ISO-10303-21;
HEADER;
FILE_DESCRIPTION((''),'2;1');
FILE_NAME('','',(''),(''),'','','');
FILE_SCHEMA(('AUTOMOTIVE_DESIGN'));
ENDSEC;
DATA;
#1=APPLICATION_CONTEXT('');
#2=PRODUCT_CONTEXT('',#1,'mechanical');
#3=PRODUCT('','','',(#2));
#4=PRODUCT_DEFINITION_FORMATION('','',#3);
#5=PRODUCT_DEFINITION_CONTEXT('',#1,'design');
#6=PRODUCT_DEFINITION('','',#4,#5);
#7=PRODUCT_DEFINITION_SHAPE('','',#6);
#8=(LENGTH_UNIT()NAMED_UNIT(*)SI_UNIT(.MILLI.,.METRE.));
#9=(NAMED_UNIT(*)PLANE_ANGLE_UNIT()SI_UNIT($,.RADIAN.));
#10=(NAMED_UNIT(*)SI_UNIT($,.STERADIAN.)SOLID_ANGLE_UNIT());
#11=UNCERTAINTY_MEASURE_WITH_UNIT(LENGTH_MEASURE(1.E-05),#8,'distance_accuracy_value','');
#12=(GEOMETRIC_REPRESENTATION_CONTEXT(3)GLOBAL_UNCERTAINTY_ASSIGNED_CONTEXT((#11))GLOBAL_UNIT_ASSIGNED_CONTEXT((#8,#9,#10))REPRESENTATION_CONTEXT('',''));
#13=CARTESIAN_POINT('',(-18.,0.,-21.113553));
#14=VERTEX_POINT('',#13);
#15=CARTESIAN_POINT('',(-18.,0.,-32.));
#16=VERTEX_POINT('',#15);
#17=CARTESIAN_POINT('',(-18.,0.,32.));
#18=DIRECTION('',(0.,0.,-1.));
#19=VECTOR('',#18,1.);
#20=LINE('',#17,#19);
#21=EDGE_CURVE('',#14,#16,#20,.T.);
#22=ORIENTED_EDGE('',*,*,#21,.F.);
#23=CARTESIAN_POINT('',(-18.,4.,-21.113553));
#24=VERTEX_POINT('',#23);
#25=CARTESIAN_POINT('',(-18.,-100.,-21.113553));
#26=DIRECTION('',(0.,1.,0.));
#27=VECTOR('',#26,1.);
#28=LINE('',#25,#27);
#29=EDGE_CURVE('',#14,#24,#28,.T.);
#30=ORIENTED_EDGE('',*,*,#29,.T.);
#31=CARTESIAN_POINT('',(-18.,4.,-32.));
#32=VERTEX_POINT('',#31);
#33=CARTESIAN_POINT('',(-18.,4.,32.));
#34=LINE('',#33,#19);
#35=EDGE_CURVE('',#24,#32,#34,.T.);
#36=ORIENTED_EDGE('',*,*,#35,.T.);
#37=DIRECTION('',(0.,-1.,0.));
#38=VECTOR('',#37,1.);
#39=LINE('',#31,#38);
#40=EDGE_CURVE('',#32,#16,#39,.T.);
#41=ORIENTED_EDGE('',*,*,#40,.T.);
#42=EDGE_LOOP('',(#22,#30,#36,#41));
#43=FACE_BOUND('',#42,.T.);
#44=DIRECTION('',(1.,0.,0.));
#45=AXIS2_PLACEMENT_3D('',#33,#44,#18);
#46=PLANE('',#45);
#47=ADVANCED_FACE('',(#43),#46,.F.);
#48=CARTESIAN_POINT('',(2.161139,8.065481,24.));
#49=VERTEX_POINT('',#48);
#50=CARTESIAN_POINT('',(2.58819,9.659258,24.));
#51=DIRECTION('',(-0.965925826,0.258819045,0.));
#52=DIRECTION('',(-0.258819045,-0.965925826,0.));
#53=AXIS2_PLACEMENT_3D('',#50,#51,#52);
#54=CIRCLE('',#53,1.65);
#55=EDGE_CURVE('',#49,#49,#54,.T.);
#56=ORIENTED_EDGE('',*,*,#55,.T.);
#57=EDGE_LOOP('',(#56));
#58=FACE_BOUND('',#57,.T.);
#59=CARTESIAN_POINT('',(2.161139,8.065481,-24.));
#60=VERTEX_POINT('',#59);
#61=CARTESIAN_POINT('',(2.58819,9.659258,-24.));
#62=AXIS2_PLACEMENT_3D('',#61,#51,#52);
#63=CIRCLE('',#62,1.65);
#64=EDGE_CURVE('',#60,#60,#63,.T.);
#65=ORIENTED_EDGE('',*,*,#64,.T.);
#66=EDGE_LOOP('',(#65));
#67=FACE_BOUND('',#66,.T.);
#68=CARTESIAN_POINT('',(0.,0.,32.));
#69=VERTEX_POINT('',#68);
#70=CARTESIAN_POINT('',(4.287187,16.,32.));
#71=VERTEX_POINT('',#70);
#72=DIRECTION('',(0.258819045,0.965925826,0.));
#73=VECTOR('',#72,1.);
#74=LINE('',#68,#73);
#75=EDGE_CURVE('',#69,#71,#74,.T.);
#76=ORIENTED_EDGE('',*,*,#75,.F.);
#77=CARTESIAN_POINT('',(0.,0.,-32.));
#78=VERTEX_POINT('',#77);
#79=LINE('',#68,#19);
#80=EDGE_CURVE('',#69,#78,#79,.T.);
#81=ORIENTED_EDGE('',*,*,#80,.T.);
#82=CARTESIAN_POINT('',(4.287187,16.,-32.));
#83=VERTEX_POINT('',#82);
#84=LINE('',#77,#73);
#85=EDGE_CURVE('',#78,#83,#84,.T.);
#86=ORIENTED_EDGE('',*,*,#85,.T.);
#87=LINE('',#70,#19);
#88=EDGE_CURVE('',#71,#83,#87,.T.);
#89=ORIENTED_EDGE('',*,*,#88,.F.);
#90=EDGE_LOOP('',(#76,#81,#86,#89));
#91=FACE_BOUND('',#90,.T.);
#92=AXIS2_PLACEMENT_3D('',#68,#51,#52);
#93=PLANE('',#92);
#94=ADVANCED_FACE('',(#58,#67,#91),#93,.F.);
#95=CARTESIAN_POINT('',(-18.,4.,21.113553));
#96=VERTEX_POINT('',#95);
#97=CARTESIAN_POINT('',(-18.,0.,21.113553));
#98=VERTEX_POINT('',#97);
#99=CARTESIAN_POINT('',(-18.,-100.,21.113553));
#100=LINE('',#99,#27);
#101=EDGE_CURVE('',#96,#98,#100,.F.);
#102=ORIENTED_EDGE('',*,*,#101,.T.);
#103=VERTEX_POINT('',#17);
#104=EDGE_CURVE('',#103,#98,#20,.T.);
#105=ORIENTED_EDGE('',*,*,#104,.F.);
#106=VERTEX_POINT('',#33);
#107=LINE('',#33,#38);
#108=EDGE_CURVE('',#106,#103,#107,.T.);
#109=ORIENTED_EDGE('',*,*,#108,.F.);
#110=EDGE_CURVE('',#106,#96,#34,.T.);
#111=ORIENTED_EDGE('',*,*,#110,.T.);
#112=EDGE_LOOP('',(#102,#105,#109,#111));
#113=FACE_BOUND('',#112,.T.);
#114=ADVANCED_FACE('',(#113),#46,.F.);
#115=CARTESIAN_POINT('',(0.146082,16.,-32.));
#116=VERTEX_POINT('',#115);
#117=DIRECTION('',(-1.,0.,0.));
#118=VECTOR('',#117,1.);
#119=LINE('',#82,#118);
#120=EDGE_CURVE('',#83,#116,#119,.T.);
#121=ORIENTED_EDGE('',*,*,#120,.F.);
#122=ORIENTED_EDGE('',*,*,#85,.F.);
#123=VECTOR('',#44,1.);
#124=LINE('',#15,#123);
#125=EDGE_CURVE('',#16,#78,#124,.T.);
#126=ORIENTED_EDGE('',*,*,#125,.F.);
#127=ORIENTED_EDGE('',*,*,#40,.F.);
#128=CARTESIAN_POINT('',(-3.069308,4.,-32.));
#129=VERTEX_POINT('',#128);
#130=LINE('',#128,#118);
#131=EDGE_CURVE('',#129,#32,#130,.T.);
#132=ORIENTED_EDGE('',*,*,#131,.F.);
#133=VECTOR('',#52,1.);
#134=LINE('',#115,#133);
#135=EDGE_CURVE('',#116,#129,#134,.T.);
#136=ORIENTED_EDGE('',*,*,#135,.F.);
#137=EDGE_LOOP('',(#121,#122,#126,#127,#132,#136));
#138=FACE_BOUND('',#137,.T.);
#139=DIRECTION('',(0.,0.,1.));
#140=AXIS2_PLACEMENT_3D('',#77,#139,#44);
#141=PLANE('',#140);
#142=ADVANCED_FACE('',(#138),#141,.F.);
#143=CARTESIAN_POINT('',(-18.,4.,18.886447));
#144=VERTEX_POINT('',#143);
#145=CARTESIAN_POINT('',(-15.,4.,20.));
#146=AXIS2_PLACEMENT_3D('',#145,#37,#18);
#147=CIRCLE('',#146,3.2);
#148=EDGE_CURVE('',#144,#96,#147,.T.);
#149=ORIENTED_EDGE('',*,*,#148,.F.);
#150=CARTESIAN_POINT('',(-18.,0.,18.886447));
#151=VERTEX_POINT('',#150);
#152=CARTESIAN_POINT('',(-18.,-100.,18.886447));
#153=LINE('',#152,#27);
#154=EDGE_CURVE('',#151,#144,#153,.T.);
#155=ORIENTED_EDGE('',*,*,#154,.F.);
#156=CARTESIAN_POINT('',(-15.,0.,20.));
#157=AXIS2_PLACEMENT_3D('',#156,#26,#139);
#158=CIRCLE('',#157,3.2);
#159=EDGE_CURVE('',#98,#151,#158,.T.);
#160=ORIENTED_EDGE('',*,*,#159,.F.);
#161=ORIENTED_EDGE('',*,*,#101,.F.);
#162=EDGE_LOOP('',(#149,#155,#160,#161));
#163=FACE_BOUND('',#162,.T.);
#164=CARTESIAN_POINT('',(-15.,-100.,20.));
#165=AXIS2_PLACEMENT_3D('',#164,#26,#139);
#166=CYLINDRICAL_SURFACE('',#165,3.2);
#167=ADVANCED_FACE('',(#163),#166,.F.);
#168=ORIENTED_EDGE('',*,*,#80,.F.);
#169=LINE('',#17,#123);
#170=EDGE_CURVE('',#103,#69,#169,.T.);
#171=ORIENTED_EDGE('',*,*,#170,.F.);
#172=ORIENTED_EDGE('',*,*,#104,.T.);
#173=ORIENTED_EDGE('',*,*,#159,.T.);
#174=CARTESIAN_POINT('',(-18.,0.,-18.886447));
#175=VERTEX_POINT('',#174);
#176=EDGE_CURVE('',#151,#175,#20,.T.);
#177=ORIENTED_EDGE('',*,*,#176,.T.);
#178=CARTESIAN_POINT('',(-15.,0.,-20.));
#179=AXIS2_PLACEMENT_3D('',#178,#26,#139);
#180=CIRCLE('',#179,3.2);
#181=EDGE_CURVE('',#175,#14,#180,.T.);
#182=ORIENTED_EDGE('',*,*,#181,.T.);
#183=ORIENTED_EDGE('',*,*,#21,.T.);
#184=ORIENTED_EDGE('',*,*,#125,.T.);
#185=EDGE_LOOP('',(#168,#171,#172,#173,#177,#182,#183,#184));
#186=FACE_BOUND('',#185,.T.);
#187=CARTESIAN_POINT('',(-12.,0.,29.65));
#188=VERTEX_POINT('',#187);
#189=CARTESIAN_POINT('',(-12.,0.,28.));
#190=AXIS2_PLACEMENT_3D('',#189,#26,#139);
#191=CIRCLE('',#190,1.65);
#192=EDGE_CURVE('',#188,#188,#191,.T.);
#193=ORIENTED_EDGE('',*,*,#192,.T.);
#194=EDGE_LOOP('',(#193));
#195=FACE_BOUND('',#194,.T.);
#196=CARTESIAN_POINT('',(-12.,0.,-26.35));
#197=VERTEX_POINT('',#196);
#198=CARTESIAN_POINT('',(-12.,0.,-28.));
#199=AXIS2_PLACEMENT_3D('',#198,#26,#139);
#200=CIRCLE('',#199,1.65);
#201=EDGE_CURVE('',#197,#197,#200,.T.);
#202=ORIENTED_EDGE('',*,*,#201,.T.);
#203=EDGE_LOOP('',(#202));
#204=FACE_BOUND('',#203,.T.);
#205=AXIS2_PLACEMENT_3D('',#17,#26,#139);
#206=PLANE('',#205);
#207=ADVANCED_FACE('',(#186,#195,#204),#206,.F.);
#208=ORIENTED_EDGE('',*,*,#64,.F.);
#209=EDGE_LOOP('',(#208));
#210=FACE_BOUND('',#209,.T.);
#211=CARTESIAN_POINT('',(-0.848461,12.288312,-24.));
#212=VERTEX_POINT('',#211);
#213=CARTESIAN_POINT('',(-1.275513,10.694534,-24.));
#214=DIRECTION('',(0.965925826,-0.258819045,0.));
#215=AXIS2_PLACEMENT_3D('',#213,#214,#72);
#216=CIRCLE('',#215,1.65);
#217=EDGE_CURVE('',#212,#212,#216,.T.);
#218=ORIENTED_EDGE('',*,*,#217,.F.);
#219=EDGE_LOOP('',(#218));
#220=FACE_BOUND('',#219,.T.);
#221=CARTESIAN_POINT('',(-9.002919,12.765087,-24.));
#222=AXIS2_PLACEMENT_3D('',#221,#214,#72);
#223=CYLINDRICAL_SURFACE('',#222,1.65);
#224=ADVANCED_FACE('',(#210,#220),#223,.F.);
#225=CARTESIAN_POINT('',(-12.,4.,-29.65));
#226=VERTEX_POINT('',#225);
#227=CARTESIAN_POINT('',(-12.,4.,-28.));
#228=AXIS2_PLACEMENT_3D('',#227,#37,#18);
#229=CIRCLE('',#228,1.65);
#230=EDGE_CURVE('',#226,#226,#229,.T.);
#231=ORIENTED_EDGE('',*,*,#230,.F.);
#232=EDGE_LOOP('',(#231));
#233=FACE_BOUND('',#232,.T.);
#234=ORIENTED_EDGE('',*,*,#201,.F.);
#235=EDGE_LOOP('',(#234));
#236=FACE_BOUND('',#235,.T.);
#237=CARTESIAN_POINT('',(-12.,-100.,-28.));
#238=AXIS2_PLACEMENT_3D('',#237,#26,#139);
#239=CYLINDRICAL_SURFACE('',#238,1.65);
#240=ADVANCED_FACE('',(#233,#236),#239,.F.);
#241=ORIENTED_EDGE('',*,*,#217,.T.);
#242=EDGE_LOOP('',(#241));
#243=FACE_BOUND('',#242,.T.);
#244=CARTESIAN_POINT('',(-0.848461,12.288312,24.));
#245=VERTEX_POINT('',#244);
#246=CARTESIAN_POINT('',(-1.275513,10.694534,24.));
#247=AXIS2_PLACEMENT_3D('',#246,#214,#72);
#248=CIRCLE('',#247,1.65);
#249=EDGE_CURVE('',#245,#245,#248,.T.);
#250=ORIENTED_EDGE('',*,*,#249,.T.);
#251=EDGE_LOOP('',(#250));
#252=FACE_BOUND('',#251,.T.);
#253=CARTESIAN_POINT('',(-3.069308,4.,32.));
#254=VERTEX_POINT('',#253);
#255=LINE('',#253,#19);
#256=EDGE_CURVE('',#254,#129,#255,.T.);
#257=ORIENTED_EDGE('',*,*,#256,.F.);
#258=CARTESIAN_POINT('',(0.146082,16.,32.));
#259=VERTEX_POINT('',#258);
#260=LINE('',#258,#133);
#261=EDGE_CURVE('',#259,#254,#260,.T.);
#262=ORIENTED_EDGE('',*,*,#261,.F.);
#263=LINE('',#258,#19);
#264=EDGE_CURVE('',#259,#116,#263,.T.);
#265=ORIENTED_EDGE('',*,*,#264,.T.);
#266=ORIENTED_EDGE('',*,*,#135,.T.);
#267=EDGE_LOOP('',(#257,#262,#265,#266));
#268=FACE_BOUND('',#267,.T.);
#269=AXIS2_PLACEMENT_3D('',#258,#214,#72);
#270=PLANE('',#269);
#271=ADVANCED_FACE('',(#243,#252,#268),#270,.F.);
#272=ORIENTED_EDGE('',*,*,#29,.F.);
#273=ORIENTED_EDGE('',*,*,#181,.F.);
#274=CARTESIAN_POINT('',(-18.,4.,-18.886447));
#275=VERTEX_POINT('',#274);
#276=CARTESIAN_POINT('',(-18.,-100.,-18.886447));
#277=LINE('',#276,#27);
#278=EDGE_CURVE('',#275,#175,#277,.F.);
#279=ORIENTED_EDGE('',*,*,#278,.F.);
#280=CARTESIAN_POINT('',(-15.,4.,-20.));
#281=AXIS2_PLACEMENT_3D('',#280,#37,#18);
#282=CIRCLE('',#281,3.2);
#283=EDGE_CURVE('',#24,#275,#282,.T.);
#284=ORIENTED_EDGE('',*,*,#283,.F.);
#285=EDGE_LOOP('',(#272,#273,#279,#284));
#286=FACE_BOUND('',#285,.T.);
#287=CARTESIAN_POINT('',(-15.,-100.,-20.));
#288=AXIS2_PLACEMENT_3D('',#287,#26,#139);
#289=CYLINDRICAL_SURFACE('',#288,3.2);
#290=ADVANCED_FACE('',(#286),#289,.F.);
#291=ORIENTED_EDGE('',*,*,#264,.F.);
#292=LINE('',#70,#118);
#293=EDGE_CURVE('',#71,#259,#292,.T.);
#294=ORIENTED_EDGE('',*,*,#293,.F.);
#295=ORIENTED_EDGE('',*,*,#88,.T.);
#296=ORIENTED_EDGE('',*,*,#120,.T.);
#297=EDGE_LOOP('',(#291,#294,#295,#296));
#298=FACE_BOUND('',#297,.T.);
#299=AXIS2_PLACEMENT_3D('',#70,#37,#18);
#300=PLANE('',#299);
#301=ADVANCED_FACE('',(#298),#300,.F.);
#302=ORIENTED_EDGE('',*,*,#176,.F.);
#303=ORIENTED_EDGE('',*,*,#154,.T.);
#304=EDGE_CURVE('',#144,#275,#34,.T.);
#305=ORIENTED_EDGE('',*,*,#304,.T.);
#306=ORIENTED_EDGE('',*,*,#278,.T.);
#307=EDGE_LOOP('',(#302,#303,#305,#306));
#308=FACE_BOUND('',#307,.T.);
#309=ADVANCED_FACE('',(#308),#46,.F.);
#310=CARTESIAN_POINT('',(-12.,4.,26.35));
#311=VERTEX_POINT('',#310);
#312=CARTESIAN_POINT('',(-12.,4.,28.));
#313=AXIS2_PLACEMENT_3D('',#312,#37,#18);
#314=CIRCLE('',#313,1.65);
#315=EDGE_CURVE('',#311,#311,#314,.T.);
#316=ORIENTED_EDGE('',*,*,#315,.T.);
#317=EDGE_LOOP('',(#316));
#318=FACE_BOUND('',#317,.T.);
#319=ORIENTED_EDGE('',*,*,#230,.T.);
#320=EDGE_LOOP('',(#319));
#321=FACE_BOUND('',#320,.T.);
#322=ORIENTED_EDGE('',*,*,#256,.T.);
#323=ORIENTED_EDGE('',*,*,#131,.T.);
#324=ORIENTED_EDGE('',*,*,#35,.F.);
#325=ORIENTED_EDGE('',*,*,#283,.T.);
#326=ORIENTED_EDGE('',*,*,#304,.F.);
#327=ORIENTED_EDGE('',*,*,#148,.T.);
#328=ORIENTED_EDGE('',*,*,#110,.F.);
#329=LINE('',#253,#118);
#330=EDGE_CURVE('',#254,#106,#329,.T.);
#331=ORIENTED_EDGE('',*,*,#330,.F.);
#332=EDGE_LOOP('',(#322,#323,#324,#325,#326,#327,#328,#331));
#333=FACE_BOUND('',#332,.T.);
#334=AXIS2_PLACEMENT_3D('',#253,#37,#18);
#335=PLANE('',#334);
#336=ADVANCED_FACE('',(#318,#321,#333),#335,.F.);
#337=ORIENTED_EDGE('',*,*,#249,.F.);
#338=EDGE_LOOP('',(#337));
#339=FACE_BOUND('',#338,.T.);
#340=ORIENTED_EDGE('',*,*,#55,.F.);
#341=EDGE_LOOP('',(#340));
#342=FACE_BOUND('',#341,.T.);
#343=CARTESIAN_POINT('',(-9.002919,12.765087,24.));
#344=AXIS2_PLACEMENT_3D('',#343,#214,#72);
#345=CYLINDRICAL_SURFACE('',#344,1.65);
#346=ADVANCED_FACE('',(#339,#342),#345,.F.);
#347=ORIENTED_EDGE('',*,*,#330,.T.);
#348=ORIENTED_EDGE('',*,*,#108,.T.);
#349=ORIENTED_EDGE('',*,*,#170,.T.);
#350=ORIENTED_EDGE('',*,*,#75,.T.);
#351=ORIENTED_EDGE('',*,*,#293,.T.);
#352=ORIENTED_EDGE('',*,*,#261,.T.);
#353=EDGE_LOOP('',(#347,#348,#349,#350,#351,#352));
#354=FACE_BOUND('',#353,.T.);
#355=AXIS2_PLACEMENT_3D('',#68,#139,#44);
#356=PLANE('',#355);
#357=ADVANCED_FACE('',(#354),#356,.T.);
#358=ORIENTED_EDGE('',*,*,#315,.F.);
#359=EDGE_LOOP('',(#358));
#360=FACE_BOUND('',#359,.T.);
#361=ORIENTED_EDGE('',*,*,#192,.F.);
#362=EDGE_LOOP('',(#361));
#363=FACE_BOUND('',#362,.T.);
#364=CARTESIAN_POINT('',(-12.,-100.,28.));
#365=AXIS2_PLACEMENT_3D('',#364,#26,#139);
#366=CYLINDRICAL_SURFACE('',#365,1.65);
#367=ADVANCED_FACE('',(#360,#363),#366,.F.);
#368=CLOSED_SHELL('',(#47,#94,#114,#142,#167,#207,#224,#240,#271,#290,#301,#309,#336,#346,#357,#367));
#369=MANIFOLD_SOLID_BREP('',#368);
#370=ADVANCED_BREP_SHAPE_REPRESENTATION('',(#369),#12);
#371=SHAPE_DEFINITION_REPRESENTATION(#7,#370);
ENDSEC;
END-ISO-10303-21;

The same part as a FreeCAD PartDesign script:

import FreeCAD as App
import Part
import Sketcher
from FreeCAD import Vector
Q = App.Units.Quantity


def add_polygon(sketch, points):
    """Adds a closed chain of lines whose ends are joined by coincident constraints."""
    first, n = sketch.GeometryCount, len(points)
    for a, b in zip(points, points[1:] + points[:1]):
        sketch.addGeometry(Part.LineSegment(App.Vector(*a, 0), App.Vector(*b, 0)), False)
    for i in range(n):
        sketch.addConstraint(Sketcher.Constraint("Coincident", first + i, 2, first + (i + 1) % n, 1))

doc = App.newDocument("Part")
body = doc.addObject("PartDesign::Body", "Body")

sketch1 = body.newObject("Sketcher::SketchObject", "Sketch")
sketch1.AttachmentSupport = (doc.getObject("XY_Plane"), [""])
sketch1.MapMode = "FlatFace"
sketch1.AttachmentOffset = App.Placement(Vector(0, 0, -32), App.Rotation())
add_polygon(sketch1, [(-18, 0), (0, 0), (4.3, 16), (0.1, 16), (-3.1, 4), (-18, 4)])
sketch1.addConstraint([
    Sketcher.Constraint("Horizontal", 0),
    Sketcher.Constraint("Horizontal", 2),
    Sketcher.Constraint("Horizontal", 4),
    Sketcher.Constraint("Vertical", 5),
    Sketcher.Constraint("Coincident", 0, 2, -1, 1),
    Sketcher.Constraint("Parallel", 1, 3),
    Sketcher.Constraint("DistanceX", 0, 1, 0, 2, 18.0),
    Sketcher.Constraint("DistanceY", 5, 2, 5, 1, 4.0),
    Sketcher.Constraint("Angle", 1, Q("75 deg")),
    Sketcher.Constraint("DistanceY", -1, 1, 1, 2, 16.0),
    Sketcher.Constraint("DistanceX", 2, 2, 2, 1, 4.141105),
])
pad1 = body.newObject("PartDesign::Pad", "Pad")
pad1.Profile = sketch1
pad1.Length = 64

sketch2 = body.newObject("Sketcher::SketchObject", "Sketch001")
sketch2.AttachmentSupport = (doc.getObject("XZ_Plane"), [""])
sketch2.MapMode = "FlatFace"
sketch2.addGeometry(Part.Circle(Vector(-15, -20, 0), Vector(0, 0, 1), 3.2), False)
sketch2.addConstraint([
    Sketcher.Constraint("Diameter", 0, 6.4),
    Sketcher.Constraint("DistanceX", 0, 3, -1, 1, 15.0),
    Sketcher.Constraint("DistanceY", 0, 3, -1, 1, 20.0),
])
pocket1 = body.newObject("PartDesign::Pocket", "Pocket")
pocket1.Profile = sketch2
pocket1.Type = "ThroughAll"
pocket1.Midplane = True

sketch3 = body.newObject("Sketcher::SketchObject", "Sketch002")
sketch3.AttachmentSupport = (doc.getObject("XZ_Plane"), [""])
sketch3.MapMode = "FlatFace"
sketch3.addGeometry(Part.Circle(Vector(-15, 20, 0), Vector(0, 0, 1), 3.2), False)
sketch3.addConstraint([
    Sketcher.Constraint("Diameter", 0, 6.4),
    Sketcher.Constraint("DistanceX", 0, 3, -1, 1, 15.0),
    Sketcher.Constraint("DistanceY", -1, 1, 0, 3, 20.0),
])
pocket2 = body.newObject("PartDesign::Pocket", "Pocket001")
pocket2.Profile = sketch3
pocket2.Type = "ThroughAll"
pocket2.Midplane = True

sketch4 = body.newObject("Sketcher::SketchObject", "Sketch003")
sketch4.AttachmentSupport = (doc.getObject("XZ_Plane"), [""])
sketch4.MapMode = "FlatFace"
sketch4.addGeometry(Part.Circle(Vector(-12, -28, 0), Vector(0, 0, 1), 1.6), False)
sketch4.addConstraint([
    Sketcher.Constraint("Diameter", 0, 3.3),
    Sketcher.Constraint("DistanceX", 0, 3, -1, 1, 12.0),
    Sketcher.Constraint("DistanceY", 0, 3, -1, 1, 28.0),
])
pocket3 = body.newObject("PartDesign::Pocket", "Pocket002")
pocket3.Profile = sketch4
pocket3.Type = "ThroughAll"
pocket3.Midplane = True

sketch5 = body.newObject("Sketcher::SketchObject", "Sketch004")
sketch5.AttachmentSupport = (doc.getObject("XZ_Plane"), [""])
sketch5.MapMode = "FlatFace"
sketch5.addGeometry(Part.Circle(Vector(-12, 28, 0), Vector(0, 0, 1), 1.6), False)
sketch5.addConstraint([
    Sketcher.Constraint("Diameter", 0, 3.3),
    Sketcher.Constraint("DistanceX", 0, 3, -1, 1, 12.0),
    Sketcher.Constraint("DistanceY", -1, 1, 0, 3, 28.0),
])
pocket4 = body.newObject("PartDesign::Pocket", "Pocket003")
pocket4.Profile = sketch5
pocket4.Type = "ThroughAll"
pocket4.Midplane = True

sketch6 = body.newObject("Sketcher::SketchObject", "Sketch005")
sketch6.Placement = App.Placement(Vector(0, 0, 0), App.Rotation(Vector(0, 0, -1), Vector(0.258819045, 0.965925826, 0), Vector(0.965925826, -0.258819045, 0), "ZXY"))
sketch6.addGeometry([
    Part.Circle(Vector(24, 10, 0), Vector(0, 0, 1), 1.6),
    Part.Circle(Vector(-24, 10, 0), Vector(0, 0, 1), 1.6),
], False)
sketch6.addConstraint([
    Sketcher.Constraint("Equal", 0, 1),
    Sketcher.Constraint("Symmetric", 0, 3, 1, 3, -2),
    Sketcher.Constraint("Diameter", 0, 3.3),
    Sketcher.Constraint("DistanceX", -1, 1, 0, 3, 24.0),
    Sketcher.Constraint("DistanceY", -1, 1, 0, 3, 10.0),
])
pocket5 = body.newObject("PartDesign::Pocket", "Pocket004")
pocket5.Profile = sketch6
pocket5.Type = "ThroughAll"
pocket5.Midplane = True

doc.recompute()
